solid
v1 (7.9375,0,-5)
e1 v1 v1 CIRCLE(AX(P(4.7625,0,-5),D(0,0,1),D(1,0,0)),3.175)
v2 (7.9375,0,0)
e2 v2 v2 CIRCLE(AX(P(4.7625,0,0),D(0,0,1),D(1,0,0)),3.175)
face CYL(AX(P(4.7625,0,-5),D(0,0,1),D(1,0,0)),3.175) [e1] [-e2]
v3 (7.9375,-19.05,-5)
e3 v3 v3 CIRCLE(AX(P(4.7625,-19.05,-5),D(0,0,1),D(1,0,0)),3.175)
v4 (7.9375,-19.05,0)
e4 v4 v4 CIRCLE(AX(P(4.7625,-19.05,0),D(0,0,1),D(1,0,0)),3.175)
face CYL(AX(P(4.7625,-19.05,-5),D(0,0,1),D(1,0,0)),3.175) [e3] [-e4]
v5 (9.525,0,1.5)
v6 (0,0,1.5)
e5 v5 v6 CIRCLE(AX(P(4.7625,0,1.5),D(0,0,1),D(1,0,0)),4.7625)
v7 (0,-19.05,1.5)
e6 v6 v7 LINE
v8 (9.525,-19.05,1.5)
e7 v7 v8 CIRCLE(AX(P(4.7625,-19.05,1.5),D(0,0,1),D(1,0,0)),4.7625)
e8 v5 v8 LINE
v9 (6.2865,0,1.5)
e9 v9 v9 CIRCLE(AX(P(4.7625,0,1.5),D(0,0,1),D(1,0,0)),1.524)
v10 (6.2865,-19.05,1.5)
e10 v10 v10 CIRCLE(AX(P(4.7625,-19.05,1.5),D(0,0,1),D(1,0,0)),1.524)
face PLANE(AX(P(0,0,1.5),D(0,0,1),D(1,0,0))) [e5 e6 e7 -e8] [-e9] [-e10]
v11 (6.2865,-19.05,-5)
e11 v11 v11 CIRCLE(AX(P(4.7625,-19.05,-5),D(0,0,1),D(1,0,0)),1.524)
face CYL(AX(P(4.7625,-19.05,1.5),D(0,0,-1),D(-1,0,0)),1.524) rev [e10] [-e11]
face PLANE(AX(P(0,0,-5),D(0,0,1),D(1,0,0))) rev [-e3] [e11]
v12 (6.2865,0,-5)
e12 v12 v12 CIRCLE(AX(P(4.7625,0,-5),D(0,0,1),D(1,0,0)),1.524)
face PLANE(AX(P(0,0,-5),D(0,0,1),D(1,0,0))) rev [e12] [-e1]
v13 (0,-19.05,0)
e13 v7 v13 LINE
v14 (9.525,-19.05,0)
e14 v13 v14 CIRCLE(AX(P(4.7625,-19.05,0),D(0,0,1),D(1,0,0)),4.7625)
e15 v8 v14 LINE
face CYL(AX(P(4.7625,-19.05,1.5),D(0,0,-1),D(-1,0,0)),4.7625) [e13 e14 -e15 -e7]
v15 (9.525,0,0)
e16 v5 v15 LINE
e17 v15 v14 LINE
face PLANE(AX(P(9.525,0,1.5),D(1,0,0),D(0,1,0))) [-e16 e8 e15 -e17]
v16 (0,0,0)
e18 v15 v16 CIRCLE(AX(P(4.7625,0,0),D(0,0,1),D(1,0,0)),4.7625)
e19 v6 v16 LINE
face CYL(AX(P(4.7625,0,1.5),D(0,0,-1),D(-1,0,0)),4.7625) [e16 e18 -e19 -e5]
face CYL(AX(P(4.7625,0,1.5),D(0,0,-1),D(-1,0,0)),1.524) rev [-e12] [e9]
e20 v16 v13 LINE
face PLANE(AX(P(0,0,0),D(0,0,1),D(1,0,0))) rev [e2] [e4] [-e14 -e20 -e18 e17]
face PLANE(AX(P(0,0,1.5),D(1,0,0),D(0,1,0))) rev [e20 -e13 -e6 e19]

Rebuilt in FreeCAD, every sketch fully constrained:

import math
import FreeCAD as App
import Part
import Sketcher
from FreeCAD import Vector
Q = App.Units.Quantity

doc = App.newDocument("Part")
body = doc.addObject("PartDesign::Body", "Body")

# Sketch on XY plane
sketch1 = body.newObject("Sketcher::SketchObject", "Sketch")
sketch1.AttachmentSupport = (doc.getObject("XY_Plane"), [""])
sketch1.MapMode = "FlatFace"
sketch1.addGeometry([
    Part.LineSegment(Vector(9.525, -19.05, 0), Vector(9.525, 0, 0)),  # 0
    Part.ArcOfCircle(Part.Circle(Vector(4.7625, 0, 0), Vector(0, 0, 1), 4.7625), math.radians(0), math.radians(180)),  # 1
    Part.LineSegment(Vector(0, 0, 0), Vector(0, -19.05, 0)),  # 2
    Part.ArcOfCircle(Part.Circle(Vector(4.7625, -19.05, 0), Vector(0, 0, 1), 4.7625), math.radians(180), math.radians(360)),  # 3
    Part.Circle(Vector(4.7625, -19.05, 0), Vector(0, 0, 1), 1.524),  # 4
    Part.Circle(Vector(4.7625, 0, 0), Vector(0, 0, 1), 1.524),  # 5
], False)
sketch1.addConstraint([
    Sketcher.Constraint("Tangent", 0, 2, 1, 1),
    Sketcher.Constraint("Tangent", 1, 2, 2, 1),
    Sketcher.Constraint("Tangent", 2, 2, 3, 1),
    Sketcher.Constraint("Tangent", 3, 2, 0, 1),
    Sketcher.Constraint("Vertical", 0),
    Sketcher.Constraint("Vertical", 2),
    Sketcher.Constraint("Coincident", 1, 2, -1, 1),
    Sketcher.Constraint("Coincident", 4, 3, 3, 3),
    Sketcher.Constraint("Coincident", 5, 3, 1, 3),
    Sketcher.Constraint("Equal", 4, 5),
    Sketcher.Constraint("Diameter", 4, Q("0.12 in")),
    Sketcher.Constraint("Radius", 1, Q("0.1875 in")),
    Sketcher.Constraint("DistanceY", 0, 1, 0, 2, Q("0.75 in")),
])
pad1 = body.newObject("PartDesign::Pad", "Pad")
pad1.Profile = sketch1
pad1.Length = 1.5

# Sketch on XY plane
sketch2 = body.newObject("Sketcher::SketchObject", "Sketch001")
sketch2.AttachmentSupport = (doc.getObject("XY_Plane"), [""])
sketch2.MapMode = "FlatFace"
sketch2.addGeometry([
    Part.Circle(Vector(4.7625, 0, 0), Vector(0, 0, 1), 3.175),
    Part.Circle(Vector(4.7625, 0, 0), Vector(0, 0, 1), 1.524),
    Part.Circle(Vector(4.7625, -19.05, 0), Vector(0, 0, 1), 3.175),
    Part.Circle(Vector(4.7625, -19.05, 0), Vector(0, 0, 1), 1.524),
], False)
sketch2.addConstraint([
    Sketcher.Constraint("Coincident", 1, 3, 0, 3),
    Sketcher.Constraint("Coincident", 3, 3, 2, 3),
    Sketcher.Constraint("Equal", 0, 2),
    Sketcher.Constraint("Equal", 1, 3),
    Sketcher.Constraint("PointOnObject", 0, 3, -1),
    Sketcher.Constraint("Vertical", 1, 3, 2, 3),
    Sketcher.Constraint("Diameter", 0, Q("0.25 in")),
    Sketcher.Constraint("Diameter", 1, Q("0.12 in")),
    Sketcher.Constraint("DistanceY", 2, 3, -1, 1, Q("0.75 in")),
    Sketcher.Constraint("DistanceX", -1, 1, 0, 3, Q("0.1875 in")),
])
pad2 = body.newObject("PartDesign::Pad", "Pad001")
pad2.Profile = sketch2
pad2.Length = 5
pad2.Reversed = True

doc.recompute()
